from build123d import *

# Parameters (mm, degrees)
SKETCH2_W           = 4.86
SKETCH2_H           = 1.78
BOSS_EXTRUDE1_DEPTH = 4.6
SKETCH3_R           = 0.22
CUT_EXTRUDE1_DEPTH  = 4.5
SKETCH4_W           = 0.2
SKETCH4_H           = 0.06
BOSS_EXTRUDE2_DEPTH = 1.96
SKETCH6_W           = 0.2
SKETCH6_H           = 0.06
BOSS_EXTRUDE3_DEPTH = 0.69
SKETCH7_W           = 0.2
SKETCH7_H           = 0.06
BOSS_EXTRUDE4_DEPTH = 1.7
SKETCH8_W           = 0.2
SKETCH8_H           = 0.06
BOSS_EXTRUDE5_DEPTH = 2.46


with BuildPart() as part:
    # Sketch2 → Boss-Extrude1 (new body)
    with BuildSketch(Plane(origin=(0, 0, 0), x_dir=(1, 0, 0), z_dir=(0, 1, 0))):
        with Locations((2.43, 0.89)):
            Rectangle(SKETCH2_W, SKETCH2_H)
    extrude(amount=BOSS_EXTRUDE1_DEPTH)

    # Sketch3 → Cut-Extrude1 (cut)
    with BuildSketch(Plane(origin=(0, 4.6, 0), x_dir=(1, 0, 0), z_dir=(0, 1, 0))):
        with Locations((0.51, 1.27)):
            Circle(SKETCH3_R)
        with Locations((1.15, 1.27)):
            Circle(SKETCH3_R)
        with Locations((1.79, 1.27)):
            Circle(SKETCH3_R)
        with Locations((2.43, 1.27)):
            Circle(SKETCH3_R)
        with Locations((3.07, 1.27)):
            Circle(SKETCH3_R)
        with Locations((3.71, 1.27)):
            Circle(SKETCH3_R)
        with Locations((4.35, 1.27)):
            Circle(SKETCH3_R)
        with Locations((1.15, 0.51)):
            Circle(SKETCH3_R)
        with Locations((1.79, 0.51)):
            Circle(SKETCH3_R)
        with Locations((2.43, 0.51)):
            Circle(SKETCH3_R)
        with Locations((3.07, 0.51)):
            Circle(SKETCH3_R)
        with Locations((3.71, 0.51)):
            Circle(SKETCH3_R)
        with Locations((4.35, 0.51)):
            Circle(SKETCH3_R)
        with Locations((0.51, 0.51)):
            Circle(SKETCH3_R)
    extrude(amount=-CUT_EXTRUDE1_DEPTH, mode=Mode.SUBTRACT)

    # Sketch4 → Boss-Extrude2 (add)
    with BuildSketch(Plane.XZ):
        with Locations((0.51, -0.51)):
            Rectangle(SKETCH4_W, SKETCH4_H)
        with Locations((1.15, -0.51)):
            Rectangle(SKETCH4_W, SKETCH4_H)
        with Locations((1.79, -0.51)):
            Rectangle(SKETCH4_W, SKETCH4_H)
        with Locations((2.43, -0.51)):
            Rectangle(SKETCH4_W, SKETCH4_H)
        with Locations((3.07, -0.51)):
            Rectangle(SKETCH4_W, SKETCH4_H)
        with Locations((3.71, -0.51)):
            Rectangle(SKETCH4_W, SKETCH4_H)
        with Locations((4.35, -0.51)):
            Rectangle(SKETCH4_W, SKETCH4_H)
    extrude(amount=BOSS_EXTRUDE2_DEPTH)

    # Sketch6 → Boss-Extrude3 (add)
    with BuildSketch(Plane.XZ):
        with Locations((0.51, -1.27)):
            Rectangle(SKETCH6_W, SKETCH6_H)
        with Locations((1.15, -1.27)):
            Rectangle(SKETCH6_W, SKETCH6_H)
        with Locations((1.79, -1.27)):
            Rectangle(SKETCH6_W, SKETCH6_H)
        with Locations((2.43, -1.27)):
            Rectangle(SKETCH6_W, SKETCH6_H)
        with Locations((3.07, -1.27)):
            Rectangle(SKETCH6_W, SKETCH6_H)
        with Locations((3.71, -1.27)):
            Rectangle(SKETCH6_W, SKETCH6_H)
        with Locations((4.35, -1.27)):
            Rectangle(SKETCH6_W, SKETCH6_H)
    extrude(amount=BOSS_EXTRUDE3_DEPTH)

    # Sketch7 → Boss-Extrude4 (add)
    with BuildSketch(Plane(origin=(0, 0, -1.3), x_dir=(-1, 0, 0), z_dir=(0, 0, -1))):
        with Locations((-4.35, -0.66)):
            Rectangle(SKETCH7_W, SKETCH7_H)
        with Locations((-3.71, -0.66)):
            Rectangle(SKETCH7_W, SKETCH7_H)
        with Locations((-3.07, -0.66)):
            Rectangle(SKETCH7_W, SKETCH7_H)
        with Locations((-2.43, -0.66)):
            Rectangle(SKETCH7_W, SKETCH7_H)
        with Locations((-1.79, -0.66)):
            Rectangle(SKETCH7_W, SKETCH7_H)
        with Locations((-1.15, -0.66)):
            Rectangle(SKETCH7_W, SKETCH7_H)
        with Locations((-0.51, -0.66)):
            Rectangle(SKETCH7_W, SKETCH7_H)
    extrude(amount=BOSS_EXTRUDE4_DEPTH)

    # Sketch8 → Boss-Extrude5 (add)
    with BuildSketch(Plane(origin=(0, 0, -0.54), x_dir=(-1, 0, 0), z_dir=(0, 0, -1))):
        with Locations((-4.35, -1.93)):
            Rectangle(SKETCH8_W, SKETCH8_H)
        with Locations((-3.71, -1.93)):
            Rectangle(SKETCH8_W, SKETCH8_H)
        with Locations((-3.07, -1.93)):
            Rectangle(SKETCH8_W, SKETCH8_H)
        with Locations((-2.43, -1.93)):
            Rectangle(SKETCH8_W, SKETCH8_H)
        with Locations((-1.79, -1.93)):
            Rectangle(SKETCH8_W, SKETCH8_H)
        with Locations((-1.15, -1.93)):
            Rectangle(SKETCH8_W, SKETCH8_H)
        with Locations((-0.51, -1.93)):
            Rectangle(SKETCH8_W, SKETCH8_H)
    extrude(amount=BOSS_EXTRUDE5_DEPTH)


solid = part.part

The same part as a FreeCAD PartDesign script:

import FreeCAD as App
import Part
import Sketcher
from FreeCAD import Vector

doc = App.newDocument("Part")
body = doc.addObject("PartDesign::Body", "Body")

# Sketch on XZ plane
sketch1 = body.newObject("Sketcher::SketchObject", "Sketch")
sketch1.AttachmentSupport = (doc.getObject("XZ_Plane"), [""])
sketch1.MapMode = "FlatFace"
sketch1.addGeometry([
    Part.LineSegment(Vector(0, -1.8, 0), Vector(0, 0, 0)),
    Part.LineSegment(Vector(0, 0, 0), Vector(4.9, 0, 0)),
    Part.LineSegment(Vector(4.9, 0, 0), Vector(4.9, -1.8, 0)),
    Part.LineSegment(Vector(4.9, -1.8, 0), Vector(0, -1.8, 0)),
], False)
sketch1.addConstraint([
    Sketcher.Constraint("Coincident", 0, 2, 1, 1),
    Sketcher.Constraint("Coincident", 1, 2, 2, 1),
    Sketcher.Constraint("Coincident", 2, 2, 3, 1),
    Sketcher.Constraint("Coincident", 3, 2, 0, 1),
    Sketcher.Constraint("Vertical", 0),
    Sketcher.Constraint("Horizontal", 1),
    Sketcher.Constraint("Vertical", 2),
    Sketcher.Constraint("Horizontal", 3),
    Sketcher.Constraint("Coincident", 0, 2, -1, 1),
    Sketcher.Constraint("DistanceX", 1, 1, 1, 2, 4.86),
    Sketcher.Constraint("DistanceY", 0, 1, 0, 2, 1.78),
])
pad1 = body.newObject("PartDesign::Pad", "Pad")
pad1.Profile = sketch1
pad1.Length = 4.6
pad1.Reversed = True

# Sketch on XZ plane
sketch2 = body.newObject("Sketcher::SketchObject", "Sketch001")
sketch2.AttachmentSupport = (doc.getObject("XZ_Plane"), [""])
sketch2.MapMode = "FlatFace"
sketch2.AttachmentOffset = App.Placement(Vector(0, 0, -4.6), App.Rotation())
sketch2.addGeometry([
    Part.Circle(Vector(0.51, -1.27, 0), Vector(0, 0, 1), 0.22),  # 0
    Part.Circle(Vector(1.15, -1.27, 0), Vector(0, 0, 1), 0.22),  # 1
    Part.Circle(Vector(1.79, -1.27, 0), Vector(0, 0, 1), 0.22),  # 2
    Part.Circle(Vector(2.43, -1.27, 0), Vector(0, 0, 1), 0.22),  # 3
    Part.Circle(Vector(3.07, -1.27, 0), Vector(0, 0, 1), 0.22),  # 4
    Part.Circle(Vector(3.71, -1.27, 0), Vector(0, 0, 1), 0.22),  # 5
    Part.Circle(Vector(4.35, -1.27, 0), Vector(0, 0, 1), 0.22),  # 6
    Part.Circle(Vector(1.15, -0.51, 0), Vector(0, 0, 1), 0.22),  # 7
    Part.Circle(Vector(1.79, -0.51, 0), Vector(0, 0, 1), 0.22),  # 8
    Part.Circle(Vector(2.43, -0.51, 0), Vector(0, 0, 1), 0.22),  # 9
    Part.Circle(Vector(3.07, -0.51, 0), Vector(0, 0, 1), 0.22),  # 10
    Part.Circle(Vector(3.71, -0.51, 0), Vector(0, 0, 1), 0.22),  # 11
    Part.Circle(Vector(4.35, -0.51, 0), Vector(0, 0, 1), 0.22),  # 12
    Part.Circle(Vector(0.51, -0.51, 0), Vector(0, 0, 1), 0.22),  # 13
], False)
sketch2.addConstraint([
    Sketcher.Constraint("Equal", 0, 1),
    Sketcher.Constraint("Equal", 1, 2),
    Sketcher.Constraint("Equal", 2, 3),
    Sketcher.Constraint("Equal", 3, 4),
    Sketcher.Constraint("Equal", 4, 5),
    Sketcher.Constraint("Equal", 5, 6),
    Sketcher.Constraint("Equal", 6, 7),
    Sketcher.Constraint("Equal", 7, 8),
    Sketcher.Constraint("Equal", 8, 9),
    Sketcher.Constraint("Equal", 9, 10),
    Sketcher.Constraint("Equal", 10, 11),
    Sketcher.Constraint("Equal", 11, 12),
    Sketcher.Constraint("Equal", 12, 13),
    Sketcher.Constraint("Horizontal", 0, 3, 1, 3),
    Sketcher.Constraint("Horizontal", 1, 3, 2, 3),
    Sketcher.Constraint("Horizontal", 2, 3, 3, 3),
    Sketcher.Constraint("Horizontal", 3, 3, 4, 3),
    Sketcher.Constraint("Horizontal", 4, 3, 5, 3),
    Sketcher.Constraint("Horizontal", 5, 3, 6, 3),
    Sketcher.Constraint("Horizontal", 7, 3, 8, 3),
    Sketcher.Constraint("Horizontal", 8, 3, 9, 3),
    Sketcher.Constraint("Horizontal", 9, 3, 10, 3),
    Sketcher.Constraint("Horizontal", 10, 3, 11, 3),
    Sketcher.Constraint("Horizontal", 11, 3, 12, 3),
    Sketcher.Constraint("Horizontal", 12, 3, 13, 3),
    Sketcher.Constraint("Vertical", 1, 3, 7, 3),
    Sketcher.Constraint("Vertical", 2, 3, 8, 3),
    Sketcher.Constraint("Vertical", 3, 3, 9, 3),
    Sketcher.Constraint("Vertical", 4, 3, 10, 3),
    Sketcher.Constraint("Vertical", 5, 3, 11, 3),
    Sketcher.Constraint("Vertical", 6, 3, 12, 3),
    Sketcher.Constraint("Vertical", 0, 3, 13, 3),
    Sketcher.Constraint("Diameter", 0, 0.44),
    Sketcher.Constraint("DistanceX", 0, 3, 5, 3, 3.2),
    Sketcher.Constraint("DistanceX", 1, 3, 6, 3, 3.2),
    Sketcher.Constraint("DistanceX", -1, 1, 0, 3, 0.51),
    Sketcher.Constraint("DistanceY", 0, 3, -1, 1, 1.27),
    Sketcher.Constraint("DistanceX", -1, 1, 1, 3, 1.15),
    Sketcher.Constraint("DistanceX", -1, 1, 2, 3, 1.79),
    Sketcher.Constraint("DistanceX", -1, 1, 3, 3, 2.43),
    Sketcher.Constraint("DistanceX", -1, 1, 4, 3, 3.07),
    Sketcher.Constraint("DistanceY", 7, 3, -1, 1, 0.51),
])
pocket1 = body.newObject("PartDesign::Pocket", "Pocket")
pocket1.Profile = sketch2
pocket1.Length = 4.5
pocket1.Reversed = True

# Sketch on XZ plane
sketch3 = body.newObject("Sketcher::SketchObject", "Sketch002")
sketch3.AttachmentSupport = (doc.getObject("XZ_Plane"), [""])
sketch3.MapMode = "FlatFace"
sketch3.addGeometry([
    Part.LineSegment(Vector(0.41, -0.48, 0), Vector(0.41, -0.54, 0)),  # 0
    Part.LineSegment(Vector(0.41, -0.54, 0), Vector(0.61, -0.54, 0)),  # 1
    Part.LineSegment(Vector(0.61, -0.54, 0), Vector(0.61, -0.48, 0)),  # 2
    Part.LineSegment(Vector(0.61, -0.48, 0), Vector(0.41, -0.48, 0)),  # 3
    Part.LineSegment(Vector(1.05, -0.48, 0), Vector(1.05, -0.54, 0)),  # 4
    Part.LineSegment(Vector(1.05, -0.54, 0), Vector(1.25, -0.54, 0)),  # 5
    Part.LineSegment(Vector(1.25, -0.54, 0), Vector(1.25, -0.48, 0)),  # 6
    Part.LineSegment(Vector(1.25, -0.48, 0), Vector(1.05, -0.48, 0)),  # 7
    Part.LineSegment(Vector(1.69, -0.48, 0), Vector(1.69, -0.54, 0)),  # 8
    Part.LineSegment(Vector(1.69, -0.54, 0), Vector(1.89, -0.54, 0)),  # 9
    Part.LineSegment(Vector(1.89, -0.54, 0), Vector(1.89, -0.48, 0)),  # 10
    Part.LineSegment(Vector(1.89, -0.48, 0), Vector(1.69, -0.48, 0)),  # 11
    Part.LineSegment(Vector(2.33, -0.48, 0), Vector(2.33, -0.54, 0)),  # 12
    Part.LineSegment(Vector(2.33, -0.54, 0), Vector(2.53, -0.54, 0)),  # 13
    Part.LineSegment(Vector(2.53, -0.54, 0), Vector(2.53, -0.48, 0)),  # 14
    Part.LineSegment(Vector(2.53, -0.48, 0), Vector(2.33, -0.48, 0)),  # 15
    Part.LineSegment(Vector(2.97, -0.48, 0), Vector(2.97, -0.54, 0)),  # 16
    Part.LineSegment(Vector(2.97, -0.54, 0), Vector(3.17, -0.54, 0)),  # 17
    Part.LineSegment(Vector(3.17, -0.54, 0), Vector(3.17, -0.48, 0)),  # 18
    Part.LineSegment(Vector(3.17, -0.48, 0), Vector(2.97, -0.48, 0)),  # 19
    Part.LineSegment(Vector(3.61, -0.48, 0), Vector(3.61, -0.54, 0)),  # 20
    Part.LineSegment(Vector(3.61, -0.54, 0), Vector(3.81, -0.54, 0)),  # 21
    Part.LineSegment(Vector(3.81, -0.54, 0), Vector(3.81, -0.48, 0)),  # 22
    Part.LineSegment(Vector(3.81, -0.48, 0), Vector(3.61, -0.48, 0)),  # 23
    Part.LineSegment(Vector(4.25, -0.48, 0), Vector(4.25, -0.54, 0)),  # 24
    Part.LineSegment(Vector(4.25, -0.54, 0), Vector(4.45, -0.54, 0)),  # 25
    Part.LineSegment(Vector(4.45, -0.54, 0), Vector(4.45, -0.48, 0)),  # 26
    Part.LineSegment(Vector(4.45, -0.48, 0), Vector(4.25, -0.48, 0)),  # 27
], False)
sketch3.addConstraint([
    Sketcher.Constraint("Coincident", 0, 2, 1, 1),
    Sketcher.Constraint("Coincident", 1, 2, 2, 1),
    Sketcher.Constraint("Coincident", 2, 2, 3, 1),
    Sketcher.Constraint("Coincident", 3, 2, 0, 1),
    Sketcher.Constraint("Coincident", 4, 2, 5, 1),
    Sketcher.Constraint("Coincident", 5, 2, 6, 1),
    Sketcher.Constraint("Coincident", 6, 2, 7, 1),
    Sketcher.Constraint("Coincident", 7, 2, 4, 1),
    Sketcher.Constraint("Coincident", 8, 2, 9, 1),
    Sketcher.Constraint("Coincident", 9, 2, 10, 1),
    Sketcher.Constraint("Coincident", 10, 2, 11, 1),
    Sketcher.Constraint("Coincident", 11, 2, 8, 1),
    Sketcher.Constraint("Coincident", 12, 2, 13, 1),
    Sketcher.Constraint("Coincident", 13, 2, 14, 1),
    Sketcher.Constraint("Coincident", 14, 2, 15, 1),
    Sketcher.Constraint("Coincident", 15, 2, 12, 1),
    Sketcher.Constraint("Coincident", 16, 2, 17, 1),
    Sketcher.Constraint("Coincident", 17, 2, 18, 1),
    Sketcher.Constraint("Coincident", 18, 2, 19, 1),
    Sketcher.Constraint("Coincident", 19, 2, 16, 1),
    Sketcher.Constraint("Coincident", 20, 2, 21, 1),
    Sketcher.Constraint("Coincident", 21, 2, 22, 1),
    Sketcher.Constraint("Coincident", 22, 2, 23, 1),
    Sketcher.Constraint("Coincident", 23, 2, 20, 1),
    Sketcher.Constraint("Coincident", 24, 2, 25, 1),
    Sketcher.Constraint("Coincident", 25, 2, 26, 1),
    Sketcher.Constraint("Coincident", 26, 2, 27, 1),
    Sketcher.Constraint("Coincident", 27, 2, 24, 1),
    Sketcher.Constraint("Vertical", 0),
    Sketcher.Constraint("Horizontal", 1),
    Sketcher.Constraint("Vertical", 2),
    Sketcher.Constraint("Horizontal", 3),
    Sketcher.Constraint("Vertical", 4),
    Sketcher.Constraint("Horizontal", 5),
    Sketcher.Constraint("Vertical", 6),
    Sketcher.Constraint("Horizontal", 7),
    Sketcher.Constraint("Vertical", 8),
    Sketcher.Constraint("Horizontal", 9),
    Sketcher.Constraint("Vertical", 10),
    Sketcher.Constraint("Horizontal", 11),
    Sketcher.Constraint("Vertical", 12),
    Sketcher.Constraint("Horizontal", 13),
    Sketcher.Constraint("Vertical", 14),
    Sketcher.Constraint("Horizontal", 15),
    Sketcher.Constraint("Vertical", 16),
    Sketcher.Constraint("Horizontal", 17),
    Sketcher.Constraint("Vertical", 18),
    Sketcher.Constraint("Horizontal", 19),
    Sketcher.Constraint("Vertical", 20),
    Sketcher.Constraint("Horizontal", 21),
    Sketcher.Constraint("Vertical", 22),
    Sketcher.Constraint("Horizontal", 23),
    Sketcher.Constraint("Vertical", 24),
    Sketcher.Constraint("Horizontal", 25),
    Sketcher.Constraint("Vertical", 26),
    Sketcher.Constraint("Horizontal", 27),
    Sketcher.Constraint("Horizontal", 1, 2, 4, 2),
    Sketcher.Constraint("Horizontal", 3, 2, 6, 2),
    Sketcher.Constraint("Horizontal", 5, 2, 8, 2),
    Sketcher.Constraint("Horizontal", 7, 2, 10, 2),
    Sketcher.Constraint("Horizontal", 9, 2, 12, 2),
    Sketcher.Constraint("Horizontal", 11, 2, 14, 2),
    Sketcher.Constraint("Horizontal", 13, 2, 16, 2),
    Sketcher.Constraint("Horizontal", 15, 2, 18, 2),
    Sketcher.Constraint("Horizontal", 17, 2, 20, 2),
    Sketcher.Constraint("Horizontal", 19, 2, 22, 2),
    Sketcher.Constraint("Horizontal", 21, 2, 24, 2),
    Sketcher.Constraint("Horizontal", 23, 2, 26, 2),
    Sketcher.Constraint("Equal", 3, 5),
    Sketcher.Constraint("Equal", 7, 9),
    Sketcher.Constraint("Equal", 11, 13),
    Sketcher.Constraint("Equal", 15, 17),
    Sketcher.Constraint("Equal", 19, 21),
    Sketcher.Constraint("Equal", 23, 25),
    Sketcher.Constraint("DistanceX", 1, 1, 1, 2, 0.2),
    Sketcher.Constraint("DistanceY", 0, 2, 0, 1, 0.06),
    Sketcher.Constraint("DistanceX", -1, 1, 0, 2, 0.41),
    Sketcher.Constraint("DistanceY", 0, 2, -1, 1, 0.54),
    Sketcher.Constraint("DistanceX", -1, 1, 4, 2, 1.05),
    Sketcher.Constraint("DistanceX", -1, 1, 8, 2, 1.69),
    Sketcher.Constraint("DistanceX", -1, 1, 12, 2, 2.33),
    Sketcher.Constraint("DistanceX", -1, 1, 16, 2, 2.97),
    Sketcher.Constraint("DistanceX", -1, 1, 20, 2, 3.61),
    Sketcher.Constraint("DistanceX", -1, 1, 24, 2, 4.25),
])
pad2 = body.newObject("PartDesign::Pad", "Pad001")
pad2.Profile = sketch3
pad2.Length = 1.96

# Sketch on XZ plane
sketch4 = body.newObject("Sketcher::SketchObject", "Sketch003")
sketch4.AttachmentSupport = (doc.getObject("XZ_Plane"), [""])
sketch4.MapMode = "FlatFace"
sketch4.addGeometry([
    Part.LineSegment(Vector(0.41, -1.24, 0), Vector(0.41, -1.3, 0)),  # 0
    Part.LineSegment(Vector(0.41, -1.3, 0), Vector(0.61, -1.3, 0)),  # 1
    Part.LineSegment(Vector(0.61, -1.3, 0), Vector(0.61, -1.24, 0)),  # 2
    Part.LineSegment(Vector(0.61, -1.24, 0), Vector(0.41, -1.24, 0)),  # 3
    Part.LineSegment(Vector(1.05, -1.24, 0), Vector(1.05, -1.3, 0)),  # 4
    Part.LineSegment(Vector(1.05, -1.3, 0), Vector(1.25, -1.3, 0)),  # 5
    Part.LineSegment(Vector(1.25, -1.3, 0), Vector(1.25, -1.24, 0)),  # 6
    Part.LineSegment(Vector(1.25, -1.24, 0), Vector(1.05, -1.24, 0)),  # 7
    Part.LineSegment(Vector(1.69, -1.24, 0), Vector(1.69, -1.3, 0)),  # 8
    Part.LineSegment(Vector(1.69, -1.3, 0), Vector(1.89, -1.3, 0)),  # 9
    Part.LineSegment(Vector(1.89, -1.3, 0), Vector(1.89, -1.24, 0)),  # 10
    Part.LineSegment(Vector(1.89, -1.24, 0), Vector(1.69, -1.24, 0)),  # 11
    Part.LineSegment(Vector(2.33, -1.24, 0), Vector(2.33, -1.3, 0)),  # 12
    Part.LineSegment(Vector(2.33, -1.3, 0), Vector(2.53, -1.3, 0)),  # 13
    Part.LineSegment(Vector(2.53, -1.3, 0), Vector(2.53, -1.24, 0)),  # 14
    Part.LineSegment(Vector(2.53, -1.24, 0), Vector(2.33, -1.24, 0)),  # 15
    Part.LineSegment(Vector(2.97, -1.24, 0), Vector(2.97, -1.3, 0)),  # 16
    Part.LineSegment(Vector(2.97, -1.3, 0), Vector(3.17, -1.3, 0)),  # 17
    Part.LineSegment(Vector(3.17, -1.3, 0), Vector(3.17, -1.24, 0)),  # 18
    Part.LineSegment(Vector(3.17, -1.24, 0), Vector(2.97, -1.24, 0)),  # 19
    Part.LineSegment(Vector(3.61, -1.24, 0), Vector(3.61, -1.3, 0)),  # 20
    Part.LineSegment(Vector(3.61, -1.3, 0), Vector(3.81, -1.3, 0)),  # 21
    Part.LineSegment(Vector(3.81, -1.3, 0), Vector(3.81, -1.24, 0)),  # 22
    Part.LineSegment(Vector(3.81, -1.24, 0), Vector(3.61, -1.24, 0)),  # 23
    Part.LineSegment(Vector(4.25, -1.24, 0), Vector(4.25, -1.3, 0)),  # 24
    Part.LineSegment(Vector(4.25, -1.3, 0), Vector(4.45, -1.3, 0)),  # 25
    Part.LineSegment(Vector(4.45, -1.3, 0), Vector(4.45, -1.24, 0)),  # 26
    Part.LineSegment(Vector(4.45, -1.24, 0), Vector(4.25, -1.24, 0)),  # 27
], False)
sketch4.addConstraint([
    Sketcher.Constraint("Coincident", 0, 2, 1, 1),
    Sketcher.Constraint("Coincident", 1, 2, 2, 1),
    Sketcher.Constraint("Coincident", 2, 2, 3, 1),
    Sketcher.Constraint("Coincident", 3, 2, 0, 1),
    Sketcher.Constraint("Coincident", 4, 2, 5, 1),
    Sketcher.Constraint("Coincident", 5, 2, 6, 1),
    Sketcher.Constraint("Coincident", 6, 2, 7, 1),
    Sketcher.Constraint("Coincident", 7, 2, 4, 1),
    Sketcher.Constraint("Coincident", 8, 2, 9, 1),
    Sketcher.Constraint("Coincident", 9, 2, 10, 1),
    Sketcher.Constraint("Coincident", 10, 2, 11, 1),
    Sketcher.Constraint("Coincident", 11, 2, 8, 1),
    Sketcher.Constraint("Coincident", 12, 2, 13, 1),
    Sketcher.Constraint("Coincident", 13, 2, 14, 1),
    Sketcher.Constraint("Coincident", 14, 2, 15, 1),
    Sketcher.Constraint("Coincident", 15, 2, 12, 1),
    Sketcher.Constraint("Coincident", 16, 2, 17, 1),
    Sketcher.Constraint("Coincident", 17, 2, 18, 1),
    Sketcher.Constraint("Coincident", 18, 2, 19, 1),
    Sketcher.Constraint("Coincident", 19, 2, 16, 1),
    Sketcher.Constraint("Coincident", 20, 2, 21, 1),
    Sketcher.Constraint("Coincident", 21, 2, 22, 1),
    Sketcher.Constraint("Coincident", 22, 2, 23, 1),
    Sketcher.Constraint("Coincident", 23, 2, 20, 1),
    Sketcher.Constraint("Coincident", 24, 2, 25, 1),
    Sketcher.Constraint("Coincident", 25, 2, 26, 1),
    Sketcher.Constraint("Coincident", 26, 2, 27, 1),
    Sketcher.Constraint("Coincident", 27, 2, 24, 1),
    Sketcher.Constraint("Vertical", 0),
    Sketcher.Constraint("Horizontal", 1),
    Sketcher.Constraint("Vertical", 2),
    Sketcher.Constraint("Horizontal", 3),
    Sketcher.Constraint("Vertical", 4),
    Sketcher.Constraint("Horizontal", 5),
    Sketcher.Constraint("Vertical", 6),
    Sketcher.Constraint("Horizontal", 7),
    Sketcher.Constraint("Vertical", 8),
    Sketcher.Constraint("Horizontal", 9),
    Sketcher.Constraint("Vertical", 10),
    Sketcher.Constraint("Horizontal", 11),
    Sketcher.Constraint("Vertical", 12),
    Sketcher.Constraint("Horizontal", 13),
    Sketcher.Constraint("Vertical", 14),
    Sketcher.Constraint("Horizontal", 15),
    Sketcher.Constraint("Vertical", 16),
    Sketcher.Constraint("Horizontal", 17),
    Sketcher.Constraint("Vertical", 18),
    Sketcher.Constraint("Horizontal", 19),
    Sketcher.Constraint("Vertical", 20),
    Sketcher.Constraint("Horizontal", 21),
    Sketcher.Constraint("Vertical", 22),
    Sketcher.Constraint("Horizontal", 23),
    Sketcher.Constraint("Vertical", 24),
    Sketcher.Constraint("Horizontal", 25),
    Sketcher.Constraint("Vertical", 26),
    Sketcher.Constraint("Horizontal", 27),
    Sketcher.Constraint("Horizontal", 1, 2, 4, 2),
    Sketcher.Constraint("Horizontal", 3, 2, 6, 2),
    Sketcher.Constraint("Horizontal", 5, 2, 8, 2),
    Sketcher.Constraint("Horizontal", 7, 2, 10, 2),
    Sketcher.Constraint("Horizontal", 9, 2, 12, 2),
    Sketcher.Constraint("Horizontal", 11, 2, 14, 2),
    Sketcher.Constraint("Horizontal", 13, 2, 16, 2),
    Sketcher.Constraint("Horizontal", 15, 2, 18, 2),
    Sketcher.Constraint("Horizontal", 17, 2, 20, 2),
    Sketcher.Constraint("Horizontal", 19, 2, 22, 2),
    Sketcher.Constraint("Horizontal", 21, 2, 24, 2),
    Sketcher.Constraint("Horizontal", 23, 2, 26, 2),
    Sketcher.Constraint("Equal", 3, 5),
    Sketcher.Constraint("Equal", 7, 9),
    Sketcher.Constraint("Equal", 11, 13),
    Sketcher.Constraint("Equal", 15, 17),
    Sketcher.Constraint("Equal", 19, 21),
    Sketcher.Constraint("Equal", 23, 25),
    Sketcher.Constraint("DistanceX", 1, 1, 1, 2, 0.2),
    Sketcher.Constraint("DistanceY", 0, 2, 0, 1, 0.06),
    Sketcher.Constraint("DistanceY", 0, 2, -1, 1, 1.3),
    Sketcher.Constraint("DistanceX", -1, 1, 0, 2, 0.41),
    Sketcher.Constraint("DistanceX", -1, 1, 4, 2, 1.05),
    Sketcher.Constraint("DistanceX", -1, 1, 8, 2, 1.69),
    Sketcher.Constraint("DistanceX", -1, 1, 12, 2, 2.33),
    Sketcher.Constraint("DistanceX", -1, 1, 16, 2, 2.97),
    Sketcher.Constraint("DistanceX", -1, 1, 20, 2, 3.61),
    Sketcher.Constraint("DistanceX", -1, 1, 24, 2, 4.25),
])
pad3 = body.newObject("PartDesign::Pad", "Pad002")
pad3.Profile = sketch4
pad3.Length = 0.69

# Sketch on XY plane
sketch5 = body.newObject("Sketcher::SketchObject", "Sketch004")
sketch5.AttachmentSupport = (doc.getObject("XY_Plane"), [""])
sketch5.MapMode = "FlatFace"
sketch5.AttachmentOffset = App.Placement(Vector(0, 0, -1.3), App.Rotation())
sketch5.addGeometry([
    Part.LineSegment(Vector(4.45, -0.63, 0), Vector(4.45, -0.69, 0)),  # 0
    Part.LineSegment(Vector(4.45, -0.69, 0), Vector(4.25, -0.69, 0)),  # 1
    Part.LineSegment(Vector(4.25, -0.69, 0), Vector(4.25, -0.63, 0)),  # 2
    Part.LineSegment(Vector(4.25, -0.63, 0), Vector(4.45, -0.63, 0)),  # 3
    Part.LineSegment(Vector(3.81, -0.63, 0), Vector(3.81, -0.69, 0)),  # 4
    Part.LineSegment(Vector(3.81, -0.69, 0), Vector(3.61, -0.69, 0)),  # 5
    Part.LineSegment(Vector(3.61, -0.69, 0), Vector(3.61, -0.63, 0)),  # 6
    Part.LineSegment(Vector(3.61, -0.63, 0), Vector(3.81, -0.63, 0)),  # 7
    Part.LineSegment(Vector(3.17, -0.63, 0), Vector(3.17, -0.69, 0)),  # 8
    Part.LineSegment(Vector(3.17, -0.69, 0), Vector(2.97, -0.69, 0)),  # 9
    Part.LineSegment(Vector(2.97, -0.69, 0), Vector(2.97, -0.63, 0)),  # 10
    Part.LineSegment(Vector(2.97, -0.63, 0), Vector(3.17, -0.63, 0)),  # 11
    Part.LineSegment(Vector(2.53, -0.63, 0), Vector(2.53, -0.69, 0)),  # 12
    Part.LineSegment(Vector(2.53, -0.69, 0), Vector(2.33, -0.69, 0)),  # 13
    Part.LineSegment(Vector(2.33, -0.69, 0), Vector(2.33, -0.63, 0)),  # 14
    Part.LineSegment(Vector(2.33, -0.63, 0), Vector(2.53, -0.63, 0)),  # 15
    Part.LineSegment(Vector(1.89, -0.63, 0), Vector(1.89, -0.69, 0)),  # 16
    Part.LineSegment(Vector(1.89, -0.69, 0), Vector(1.69, -0.69, 0)),  # 17
    Part.LineSegment(Vector(1.69, -0.69, 0), Vector(1.69, -0.63, 0)),  # 18
    Part.LineSegment(Vector(1.69, -0.63, 0), Vector(1.89, -0.63, 0)),  # 19
    Part.LineSegment(Vector(1.25, -0.63, 0), Vector(1.25, -0.69, 0)),  # 20
    Part.LineSegment(Vector(1.25, -0.69, 0), Vector(1.05, -0.69, 0)),  # 21
    Part.LineSegment(Vector(1.05, -0.69, 0), Vector(1.05, -0.63, 0)),  # 22
    Part.LineSegment(Vector(1.05, -0.63, 0), Vector(1.25, -0.63, 0)),  # 23
    Part.LineSegment(Vector(0.61, -0.63, 0), Vector(0.61, -0.69, 0)),  # 24
    Part.LineSegment(Vector(0.61, -0.69, 0), Vector(0.41, -0.69, 0)),  # 25
    Part.LineSegment(Vector(0.41, -0.69, 0), Vector(0.41, -0.63, 0)),  # 26
    Part.LineSegment(Vector(0.41, -0.63, 0), Vector(0.61, -0.63, 0)),  # 27
], False)
sketch5.addConstraint([
    Sketcher.Constraint("Coincident", 0, 2, 1, 1),
    Sketcher.Constraint("Coincident", 1, 2, 2, 1),
    Sketcher.Constraint("Coincident", 2, 2, 3, 1),
    Sketcher.Constraint("Coincident", 3, 2, 0, 1),
    Sketcher.Constraint("Coincident", 4, 2, 5, 1),
    Sketcher.Constraint("Coincident", 5, 2, 6, 1),
    Sketcher.Constraint("Coincident", 6, 2, 7, 1),
    Sketcher.Constraint("Coincident", 7, 2, 4, 1),
    Sketcher.Constraint("Coincident", 8, 2, 9, 1),
    Sketcher.Constraint("Coincident", 9, 2, 10, 1),
    Sketcher.Constraint("Coincident", 10, 2, 11, 1),
    Sketcher.Constraint("Coincident", 11, 2, 8, 1),
    Sketcher.Constraint("Coincident", 12, 2, 13, 1),
    Sketcher.Constraint("Coincident", 13, 2, 14, 1),
    Sketcher.Constraint("Coincident", 14, 2, 15, 1),
    Sketcher.Constraint("Coincident", 15, 2, 12, 1),
    Sketcher.Constraint("Coincident", 16, 2, 17, 1),
    Sketcher.Constraint("Coincident", 17, 2, 18, 1),
    Sketcher.Constraint("Coincident", 18, 2, 19, 1),
    Sketcher.Constraint("Coincident", 19, 2, 16, 1),
    Sketcher.Constraint("Coincident", 20, 2, 21, 1),
    Sketcher.Constraint("Coincident", 21, 2, 22, 1),
    Sketcher.Constraint("Coincident", 22, 2, 23, 1),
    Sketcher.Constraint("Coincident", 23, 2, 20, 1),
    Sketcher.Constraint("Coincident", 24, 2, 25, 1),
    Sketcher.Constraint("Coincident", 25, 2, 26, 1),
    Sketcher.Constraint("Coincident", 26, 2, 27, 1),
    Sketcher.Constraint("Coincident", 27, 2, 24, 1),
    Sketcher.Constraint("Vertical", 0),
    Sketcher.Constraint("Horizontal", 1),
    Sketcher.Constraint("Vertical", 2),
    Sketcher.Constraint("Horizontal", 3),
    Sketcher.Constraint("Vertical", 4),
    Sketcher.Constraint("Horizontal", 5),
    Sketcher.Constraint("Vertical", 6),
    Sketcher.Constraint("Horizontal", 7),
    Sketcher.Constraint("Vertical", 8),
    Sketcher.Constraint("Horizontal", 9),
    Sketcher.Constraint("Vertical", 10),
    Sketcher.Constraint("Horizontal", 11),
    Sketcher.Constraint("Vertical", 12),
    Sketcher.Constraint("Horizontal", 13),
    Sketcher.Constraint("Vertical", 14),
    Sketcher.Constraint("Horizontal", 15),
    Sketcher.Constraint("Vertical", 16),
    Sketcher.Constraint("Horizontal", 17),
    Sketcher.Constraint("Vertical", 18),
    Sketcher.Constraint("Horizontal", 19),
    Sketcher.Constraint("Vertical", 20),
    Sketcher.Constraint("Horizontal", 21),
    Sketcher.Constraint("Vertical", 22),
    Sketcher.Constraint("Horizontal", 23),
    Sketcher.Constraint("Vertical", 24),
    Sketcher.Constraint("Horizontal", 25),
    Sketcher.Constraint("Vertical", 26),
    Sketcher.Constraint("Horizontal", 27),
    Sketcher.Constraint("Horizontal", 1, 2, 4, 2),
    Sketcher.Constraint("Horizontal", 3, 2, 6, 2),
    Sketcher.Constraint("Horizontal", 5, 2, 8, 2),
    Sketcher.Constraint("Horizontal", 7, 2, 10, 2),
    Sketcher.Constraint("Horizontal", 9, 2, 12, 2),
    Sketcher.Constraint("Horizontal", 11, 2, 14, 2),
    Sketcher.Constraint("Horizontal", 13, 2, 16, 2),
    Sketcher.Constraint("Horizontal", 15, 2, 18, 2),
    Sketcher.Constraint("Horizontal", 17, 2, 20, 2),
    Sketcher.Constraint("Horizontal", 19, 2, 22, 2),
    Sketcher.Constraint("Horizontal", 21, 2, 24, 2),
    Sketcher.Constraint("Horizontal", 23, 2, 26, 2),
    Sketcher.Constraint("Equal", 3, 5),
    Sketcher.Constraint("Equal", 7, 9),
    Sketcher.Constraint("Equal", 11, 13),
    Sketcher.Constraint("Equal", 15, 17),
    Sketcher.Constraint("Equal", 19, 21),
    Sketcher.Constraint("Equal", 23, 25),
    Sketcher.Constraint("DistanceX", 1, 2, 1, 1, 0.2),
    Sketcher.Constraint("DistanceY", 0, 2, 0, 1, 0.06),
    Sketcher.Constraint("DistanceX", -1, 1, 0, 2, 4.45),
    Sketcher.Constraint("DistanceY", 0, 2, -1, 1, 0.69),
    Sketcher.Constraint("DistanceX", -1, 1, 4, 2, 3.81),
    Sketcher.Constraint("DistanceX", -1, 1, 8, 2, 3.17),
    Sketcher.Constraint("DistanceX", -1, 1, 12, 2, 2.53),
    Sketcher.Constraint("DistanceX", -1, 1, 16, 2, 1.89),
    Sketcher.Constraint("DistanceX", -1, 1, 20, 2, 1.25),
    Sketcher.Constraint("DistanceX", -1, 1, 24, 2, 0.61),
])
pad4 = body.newObject("PartDesign::Pad", "Pad003")
pad4.Profile = sketch5
pad4.Length = 1.7
pad4.Reversed = True

# Sketch on XY plane
sketch6 = body.newObject("Sketcher::SketchObject", "Sketch005")
sketch6.AttachmentSupport = (doc.getObject("XY_Plane"), [""])
sketch6.MapMode = "FlatFace"
sketch6.AttachmentOffset = App.Placement(Vector(0, 0, -0.54), App.Rotation())
sketch6.addGeometry([
    Part.LineSegment(Vector(4.45, -1.9, 0), Vector(4.45, -1.96, 0)),  # 0
    Part.LineSegment(Vector(4.45, -1.96, 0), Vector(4.25, -1.96, 0)),  # 1
    Part.LineSegment(Vector(4.25, -1.96, 0), Vector(4.25, -1.9, 0)),  # 2
    Part.LineSegment(Vector(4.25, -1.9, 0), Vector(4.45, -1.9, 0)),  # 3
    Part.LineSegment(Vector(3.81, -1.9, 0), Vector(3.81, -1.96, 0)),  # 4
    Part.LineSegment(Vector(3.81, -1.96, 0), Vector(3.61, -1.96, 0)),  # 5
    Part.LineSegment(Vector(3.61, -1.96, 0), Vector(3.61, -1.9, 0)),  # 6
    Part.LineSegment(Vector(3.61, -1.9, 0), Vector(3.81, -1.9, 0)),  # 7
    Part.LineSegment(Vector(3.17, -1.9, 0), Vector(3.17, -1.96, 0)),  # 8
    Part.LineSegment(Vector(3.17, -1.96, 0), Vector(2.97, -1.96, 0)),  # 9
    Part.LineSegment(Vector(2.97, -1.96, 0), Vector(2.97, -1.9, 0)),  # 10
    Part.LineSegment(Vector(2.97, -1.9, 0), Vector(3.17, -1.9, 0)),  # 11
    Part.LineSegment(Vector(2.53, -1.9, 0), Vector(2.53, -1.96, 0)),  # 12
    Part.LineSegment(Vector(2.53, -1.96, 0), Vector(2.33, -1.96, 0)),  # 13
    Part.LineSegment(Vector(2.33, -1.96, 0), Vector(2.33, -1.9, 0)),  # 14
    Part.LineSegment(Vector(2.33, -1.9, 0), Vector(2.53, -1.9, 0)),  # 15
    Part.LineSegment(Vector(1.89, -1.9, 0), Vector(1.89, -1.96, 0)),  # 16
    Part.LineSegment(Vector(1.89, -1.96, 0), Vector(1.69, -1.96, 0)),  # 17
    Part.LineSegment(Vector(1.69, -1.96, 0), Vector(1.69, -1.9, 0)),  # 18
    Part.LineSegment(Vector(1.69, -1.9, 0), Vector(1.89, -1.9, 0)),  # 19
    Part.LineSegment(Vector(1.25, -1.9, 0), Vector(1.25, -1.96, 0)),  # 20
    Part.LineSegment(Vector(1.25, -1.96, 0), Vector(1.05, -1.96, 0)),  # 21
    Part.LineSegment(Vector(1.05, -1.96, 0), Vector(1.05, -1.9, 0)),  # 22
    Part.LineSegment(Vector(1.05, -1.9, 0), Vector(1.25, -1.9, 0)),  # 23
    Part.LineSegment(Vector(0.61, -1.9, 0), Vector(0.61, -1.96, 0)),  # 24
    Part.LineSegment(Vector(0.61, -1.96, 0), Vector(0.41, -1.96, 0)),  # 25
    Part.LineSegment(Vector(0.41, -1.96, 0), Vector(0.41, -1.9, 0)),  # 26
    Part.LineSegment(Vector(0.41, -1.9, 0), Vector(0.61, -1.9, 0)),  # 27
], False)
sketch6.addConstraint([
    Sketcher.Constraint("Coincident", 0, 2, 1, 1),
    Sketcher.Constraint("Coincident", 1, 2, 2, 1),
    Sketcher.Constraint("Coincident", 2, 2, 3, 1),
    Sketcher.Constraint("Coincident", 3, 2, 0, 1),
    Sketcher.Constraint("Coincident", 4, 2, 5, 1),
    Sketcher.Constraint("Coincident", 5, 2, 6, 1),
    Sketcher.Constraint("Coincident", 6, 2, 7, 1),
    Sketcher.Constraint("Coincident", 7, 2, 4, 1),
    Sketcher.Constraint("Coincident", 8, 2, 9, 1),
    Sketcher.Constraint("Coincident", 9, 2, 10, 1),
    Sketcher.Constraint("Coincident", 10, 2, 11, 1),
    Sketcher.Constraint("Coincident", 11, 2, 8, 1),
    Sketcher.Constraint("Coincident", 12, 2, 13, 1),
    Sketcher.Constraint("Coincident", 13, 2, 14, 1),
    Sketcher.Constraint("Coincident", 14, 2, 15, 1),
    Sketcher.Constraint("Coincident", 15, 2, 12, 1),
    Sketcher.Constraint("Coincident", 16, 2, 17, 1),
    Sketcher.Constraint("Coincident", 17, 2, 18, 1),
    Sketcher.Constraint("Coincident", 18, 2, 19, 1),
    Sketcher.Constraint("Coincident", 19, 2, 16, 1),
    Sketcher.Constraint("Coincident", 20, 2, 21, 1),
    Sketcher.Constraint("Coincident", 21, 2, 22, 1),
    Sketcher.Constraint("Coincident", 22, 2, 23, 1),
    Sketcher.Constraint("Coincident", 23, 2, 20, 1),
    Sketcher.Constraint("Coincident", 24, 2, 25, 1),
    Sketcher.Constraint("Coincident", 25, 2, 26, 1),
    Sketcher.Constraint("Coincident", 26, 2, 27, 1),
    Sketcher.Constraint("Coincident", 27, 2, 24, 1),
    Sketcher.Constraint("Vertical", 0),
    Sketcher.Constraint("Horizontal", 1),
    Sketcher.Constraint("Vertical", 2),
    Sketcher.Constraint("Horizontal", 3),
    Sketcher.Constraint("Vertical", 4),
    Sketcher.Constraint("Horizontal", 5),
    Sketcher.Constraint("Vertical", 6),
    Sketcher.Constraint("Horizontal", 7),
    Sketcher.Constraint("Vertical", 8),
    Sketcher.Constraint("Horizontal", 9),
    Sketcher.Constraint("Vertical", 10),
    Sketcher.Constraint("Horizontal", 11),
    Sketcher.Constraint("Vertical", 12),
    Sketcher.Constraint("Horizontal", 13),
    Sketcher.Constraint("Vertical", 14),
    Sketcher.Constraint("Horizontal", 15),
    Sketcher.Constraint("Vertical", 16),
    Sketcher.Constraint("Horizontal", 17),
    Sketcher.Constraint("Vertical", 18),
    Sketcher.Constraint("Horizontal", 19),
    Sketcher.Constraint("Vertical", 20),
    Sketcher.Constraint("Horizontal", 21),
    Sketcher.Constraint("Vertical", 22),
    Sketcher.Constraint("Horizontal", 23),
    Sketcher.Constraint("Vertical", 24),
    Sketcher.Constraint("Horizontal", 25),
    Sketcher.Constraint("Vertical", 26),
    Sketcher.Constraint("Horizontal", 27),
    Sketcher.Constraint("Horizontal", 1, 2, 4, 2),
    Sketcher.Constraint("Horizontal", 3, 2, 6, 2),
    Sketcher.Constraint("Horizontal", 5, 2, 8, 2),
    Sketcher.Constraint("Horizontal", 7, 2, 10, 2),
    Sketcher.Constraint("Horizontal", 9, 2, 12, 2),
    Sketcher.Constraint("Horizontal", 11, 2, 14, 2),
    Sketcher.Constraint("Horizontal", 13, 2, 16, 2),
    Sketcher.Constraint("Horizontal", 15, 2, 18, 2),
    Sketcher.Constraint("Horizontal", 17, 2, 20, 2),
    Sketcher.Constraint("Horizontal", 19, 2, 22, 2),
    Sketcher.Constraint("Horizontal", 21, 2, 24, 2),
    Sketcher.Constraint("Horizontal", 23, 2, 26, 2),
    Sketcher.Constraint("Equal", 3, 5),
    Sketcher.Constraint("Equal", 7, 9),
    Sketcher.Constraint("Equal", 11, 13),
    Sketcher.Constraint("Equal", 15, 17),
    Sketcher.Constraint("Equal", 19, 21),
    Sketcher.Constraint("Equal", 23, 25),
    Sketcher.Constraint("DistanceX", 1, 2, 1, 1, 0.2),
    Sketcher.Constraint("DistanceY", 0, 2, 0, 1, 0.06),
    Sketcher.Constraint("DistanceY", 2, 2, -1, 1, 1.9),
    Sketcher.Constraint("DistanceX", -1, 1, 0, 2, 4.45),
    Sketcher.Constraint("DistanceX", -1, 1, 4, 2, 3.81),
    Sketcher.Constraint("DistanceX", -1, 1, 8, 2, 3.17),
    Sketcher.Constraint("DistanceX", -1, 1, 12, 2, 2.53),
    Sketcher.Constraint("DistanceX", -1, 1, 16, 2, 1.89),
    Sketcher.Constraint("DistanceX", -1, 1, 20, 2, 1.25),
    Sketcher.Constraint("DistanceX", -1, 1, 24, 2, 0.61),
])
pad5 = body.newObject("PartDesign::Pad", "Pad004")
pad5.Profile = sketch6
pad5.Length = 2.46
pad5.Reversed = True

doc.recompute()
